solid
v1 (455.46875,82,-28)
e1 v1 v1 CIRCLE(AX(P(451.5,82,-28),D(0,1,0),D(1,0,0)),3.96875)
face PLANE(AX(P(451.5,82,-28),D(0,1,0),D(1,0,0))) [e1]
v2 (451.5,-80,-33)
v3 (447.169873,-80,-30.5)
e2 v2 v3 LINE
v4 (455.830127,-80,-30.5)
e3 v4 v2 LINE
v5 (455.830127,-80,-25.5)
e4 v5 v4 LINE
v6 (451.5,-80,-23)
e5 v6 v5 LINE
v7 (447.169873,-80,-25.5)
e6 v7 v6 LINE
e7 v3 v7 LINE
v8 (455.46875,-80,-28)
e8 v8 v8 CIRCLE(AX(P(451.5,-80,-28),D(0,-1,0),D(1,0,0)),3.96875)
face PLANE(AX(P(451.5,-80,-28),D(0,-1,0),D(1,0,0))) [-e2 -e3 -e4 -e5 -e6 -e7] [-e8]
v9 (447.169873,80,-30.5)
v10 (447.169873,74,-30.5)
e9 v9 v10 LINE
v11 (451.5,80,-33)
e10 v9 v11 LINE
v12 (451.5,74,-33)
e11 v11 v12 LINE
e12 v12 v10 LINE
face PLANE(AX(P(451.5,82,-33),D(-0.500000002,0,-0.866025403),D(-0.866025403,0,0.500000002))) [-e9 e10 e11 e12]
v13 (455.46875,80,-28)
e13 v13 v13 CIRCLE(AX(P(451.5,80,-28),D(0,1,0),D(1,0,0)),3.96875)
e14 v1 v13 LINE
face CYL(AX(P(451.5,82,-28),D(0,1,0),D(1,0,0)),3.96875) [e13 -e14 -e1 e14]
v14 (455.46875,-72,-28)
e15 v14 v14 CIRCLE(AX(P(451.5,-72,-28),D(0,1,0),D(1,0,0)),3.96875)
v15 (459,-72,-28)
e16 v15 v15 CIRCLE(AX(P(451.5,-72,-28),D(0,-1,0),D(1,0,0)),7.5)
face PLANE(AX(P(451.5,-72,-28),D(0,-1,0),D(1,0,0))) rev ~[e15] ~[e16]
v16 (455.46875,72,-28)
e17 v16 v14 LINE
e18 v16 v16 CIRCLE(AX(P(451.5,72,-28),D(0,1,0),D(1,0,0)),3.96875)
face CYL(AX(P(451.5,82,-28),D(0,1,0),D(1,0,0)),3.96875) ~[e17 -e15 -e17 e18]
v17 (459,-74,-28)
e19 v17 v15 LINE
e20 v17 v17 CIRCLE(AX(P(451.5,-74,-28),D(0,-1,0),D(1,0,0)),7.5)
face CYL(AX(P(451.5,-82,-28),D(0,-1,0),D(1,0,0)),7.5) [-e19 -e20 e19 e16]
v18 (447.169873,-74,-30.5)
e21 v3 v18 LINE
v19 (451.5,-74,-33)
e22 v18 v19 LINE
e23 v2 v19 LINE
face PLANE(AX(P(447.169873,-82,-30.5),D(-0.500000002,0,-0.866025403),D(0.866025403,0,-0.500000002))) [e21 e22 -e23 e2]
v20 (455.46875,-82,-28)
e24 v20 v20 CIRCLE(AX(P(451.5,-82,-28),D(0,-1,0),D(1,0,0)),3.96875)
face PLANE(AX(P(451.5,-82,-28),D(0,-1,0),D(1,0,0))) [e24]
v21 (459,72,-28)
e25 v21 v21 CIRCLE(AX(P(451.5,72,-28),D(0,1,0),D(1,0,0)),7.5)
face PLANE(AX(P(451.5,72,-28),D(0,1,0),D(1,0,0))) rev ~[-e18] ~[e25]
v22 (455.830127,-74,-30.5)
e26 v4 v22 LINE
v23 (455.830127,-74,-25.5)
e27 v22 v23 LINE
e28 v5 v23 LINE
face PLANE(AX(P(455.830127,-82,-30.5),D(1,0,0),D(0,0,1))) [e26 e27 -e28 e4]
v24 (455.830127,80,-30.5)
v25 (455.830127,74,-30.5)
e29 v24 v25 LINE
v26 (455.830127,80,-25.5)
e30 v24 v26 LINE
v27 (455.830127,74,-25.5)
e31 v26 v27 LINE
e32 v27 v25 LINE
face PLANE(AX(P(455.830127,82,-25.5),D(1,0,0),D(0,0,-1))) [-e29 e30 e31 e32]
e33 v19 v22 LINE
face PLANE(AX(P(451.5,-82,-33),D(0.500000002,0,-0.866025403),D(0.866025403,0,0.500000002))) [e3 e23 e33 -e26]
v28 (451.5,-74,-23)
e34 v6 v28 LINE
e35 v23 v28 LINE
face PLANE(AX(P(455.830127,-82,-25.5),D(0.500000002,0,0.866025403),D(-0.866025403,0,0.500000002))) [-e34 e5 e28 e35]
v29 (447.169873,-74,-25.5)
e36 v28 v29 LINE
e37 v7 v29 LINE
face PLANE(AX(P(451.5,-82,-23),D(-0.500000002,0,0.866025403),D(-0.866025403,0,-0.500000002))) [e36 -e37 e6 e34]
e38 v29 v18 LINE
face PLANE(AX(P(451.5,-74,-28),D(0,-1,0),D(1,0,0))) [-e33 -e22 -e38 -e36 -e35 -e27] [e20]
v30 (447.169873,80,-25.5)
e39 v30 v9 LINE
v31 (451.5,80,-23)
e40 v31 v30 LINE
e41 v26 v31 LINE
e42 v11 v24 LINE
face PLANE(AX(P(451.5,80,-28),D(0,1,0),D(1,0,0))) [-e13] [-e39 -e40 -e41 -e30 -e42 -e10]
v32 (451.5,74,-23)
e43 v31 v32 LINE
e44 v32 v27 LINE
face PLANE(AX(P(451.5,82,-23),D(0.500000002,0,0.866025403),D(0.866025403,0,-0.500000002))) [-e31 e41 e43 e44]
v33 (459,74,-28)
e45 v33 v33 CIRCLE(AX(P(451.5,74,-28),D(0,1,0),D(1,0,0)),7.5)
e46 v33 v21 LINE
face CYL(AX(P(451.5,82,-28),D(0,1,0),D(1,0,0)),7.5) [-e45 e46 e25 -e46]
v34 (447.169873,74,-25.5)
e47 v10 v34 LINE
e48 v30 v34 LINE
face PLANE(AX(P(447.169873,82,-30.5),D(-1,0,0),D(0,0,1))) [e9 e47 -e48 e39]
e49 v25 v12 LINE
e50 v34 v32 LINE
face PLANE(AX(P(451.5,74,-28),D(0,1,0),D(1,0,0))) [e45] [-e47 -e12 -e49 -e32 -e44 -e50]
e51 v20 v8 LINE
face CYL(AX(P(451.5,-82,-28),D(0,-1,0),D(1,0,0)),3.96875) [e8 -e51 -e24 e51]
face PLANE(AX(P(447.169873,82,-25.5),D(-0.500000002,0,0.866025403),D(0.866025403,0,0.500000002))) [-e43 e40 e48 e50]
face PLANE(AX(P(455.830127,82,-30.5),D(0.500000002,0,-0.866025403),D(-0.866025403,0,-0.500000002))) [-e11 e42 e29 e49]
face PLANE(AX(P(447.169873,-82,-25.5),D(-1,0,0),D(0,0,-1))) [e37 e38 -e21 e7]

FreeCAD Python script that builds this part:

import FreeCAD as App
import Part
import Sketcher

V = App.Vector
Q = App.Units.Quantity

doc = App.newDocument("Part")
body = doc.addObject("PartDesign::Body", "Body")

# Sketch on XZ plane
sketch1 = body.newObject("Sketcher::SketchObject", "Sketch")
sketch1.AttachmentSupport = (doc.getObject("XZ_Plane"), [""])
sketch1.MapMode = "FlatFace"
sketch1.AttachmentOffset = App.Placement(V(0, 0, -82), App.Rotation())
sketch1.addGeometry(Part.Circle(V(500, 56, 0), V(0, 0, 1), 3.96875), False)
sketch1.addConstraint(Sketcher.Constraint("DistanceX", -1, 1, 0, 3, Q("500 mm")))
sketch1.addConstraint(Sketcher.Constraint("DistanceY", -1, 1, 0, 3, Q("56 mm")))
sketch1.addConstraint(Sketcher.Constraint("Diameter", 0, Q("7.9375 mm")))
pad1 = body.newObject("PartDesign::Pad", "Pad")
pad1.Profile = sketch1
pad1.Length = 164

# Sketch on XZ plane
sketch2 = body.newObject("Sketcher::SketchObject", "Sketch001")
sketch2.AttachmentSupport = (doc.getObject("XZ_Plane"), [""])
sketch2.MapMode = "FlatFace"
sketch2.AttachmentOffset = App.Placement(V(0, 0, -82), App.Rotation())
sketch2.addGeometry(Part.Circle(V(500, 56, 0), V(0, 0, 1), 7.5), False)
sketch2.addConstraint(Sketcher.Constraint("Diameter", 0, Q("15 mm")))
sketch2.addConstraint(Sketcher.Constraint("DistanceX", -1, 1, 0, 3, Q("500 mm")))
sketch2.addConstraint(Sketcher.Constraint("DistanceY", -1, 1, 0, 3, Q("56 mm")))
pad2 = body.newObject("PartDesign::Pad", "Pad001")
pad2.Profile = sketch2
pad2.Length = 10

# Sketch on XZ plane
sketch3 = body.newObject("Sketcher::SketchObject", "Sketch002")
sketch3.AttachmentSupport = (doc.getObject("XZ_Plane"), [""])
sketch3.MapMode = "FlatFace"
sketch3.AttachmentOffset = App.Placement(V(0, 0, -82), App.Rotation())
sketch3.addGeometry(Part.Circle(V(500, 56, 0), V(0, 0, 1), 7.5), False)
sketch3.addGeometry(Part.LineSegment(V(495.669873, 53.5, 0), V(500, 51, 0)), False)
sketch3.addGeometry(Part.LineSegment(V(500, 51, 0), V(504.330127, 53.5, 0)), False)
sketch3.addGeometry(Part.LineSegment(V(504.330127, 53.5, 0), V(504.330127, 58.5, 0)), False)
sketch3.addGeometry(Part.LineSegment(V(504.330127, 58.5, 0), V(500, 61, 0)), False)
sketch3.addGeometry(Part.LineSegment(V(500, 61, 0), V(495.669873, 58.5, 0)), False)
sketch3.addGeometry(Part.LineSegment(V(495.669873, 58.5, 0), V(495.669873, 53.5, 0)), False)
sketch3.addConstraint(Sketcher.Constraint("Coincident", 1, 2, 2, 1))
sketch3.addConstraint(Sketcher.Constraint("Coincident", 2, 2, 3, 1))
sketch3.addConstraint(Sketcher.Constraint("Coincident", 3, 2, 4, 1))
sketch3.addConstraint(Sketcher.Constraint("Coincident", 4, 2, 5, 1))
sketch3.addConstraint(Sketcher.Constraint("Coincident", 5, 2, 6, 1))
sketch3.addConstraint(Sketcher.Constraint("Coincident", 6, 2, 1, 1))
sketch3.addConstraint(Sketcher.Constraint("Vertical", 3))
sketch3.addConstraint(Sketcher.Constraint("Vertical", 6))
sketch3.addConstraint(Sketcher.Constraint("Parallel", 1, 4))
sketch3.addConstraint(Sketcher.Constraint("Parallel", 2, 5))
sketch3.addConstraint(Sketcher.Constraint("Horizontal", 3, 2, 5, 2))
sketch3.addConstraint(Sketcher.Constraint("Horizontal", 2, 2, 6, 2))
sketch3.addConstraint(Sketcher.Constraint("Vertical", 0, 3, 1, 2))
sketch3.addConstraint(Sketcher.Constraint("Vertical", 1, 2, 4, 2))
sketch3.addConstraint(Sketcher.Constraint("Diameter", 0, Q("15 mm")))
sketch3.addConstraint(Sketcher.Constraint("DistanceY", 3, 1, 3, 2, Q("5 mm")))
sketch3.addConstraint(Sketcher.Constraint("Angle", 1, Q("-30 deg")))
sketch3.addConstraint(Sketcher.Constraint("Distance", 1, Q("5 mm")))
sketch3.addConstraint(Sketcher.Constraint("DistanceX", -1, 1, 0, 3, Q("500 mm")))
sketch3.addConstraint(Sketcher.Constraint("DistanceY", -1, 1, 0, 3, Q("56 mm")))
sketch3.addConstraint(Sketcher.Constraint("DistanceY", -1, 1, 1, 2, Q("51 mm")))
pocket1 = body.newObject("PartDesign::Pocket", "Pocket")
pocket1.Profile = sketch3
pocket1.Length = 8
pocket1.Reversed = True

# Sketch on XZ plane
sketch4 = body.newObject("Sketcher::SketchObject", "Sketch003")
sketch4.AttachmentSupport = (doc.getObject("XZ_Plane"), [""])
sketch4.MapMode = "FlatFace"
sketch4.AttachmentOffset = App.Placement(V(0, 0, -82), App.Rotation())
sketch4.addGeometry(Part.Circle(V(500, 56, 0), V(0, 0, 1), 7.5), False)
sketch4.addGeometry(Part.Circle(V(500, 56, 0), V(0, 0, 1), 3.96875), False)
sketch4.addConstraint(Sketcher.Constraint("Coincident", 1, 3, 0, 3))
sketch4.addConstraint(Sketcher.Constraint("Diameter", 0, Q("15 mm")))
sketch4.addConstraint(Sketcher.Constraint("DistanceX", -1, 1, 0, 3, Q("500 mm")))
sketch4.addConstraint(Sketcher.Constraint("DistanceY", -1, 1, 0, 3, Q("56 mm")))
sketch4.addConstraint(Sketcher.Constraint("Diameter", 1, Q("7.9375 mm")))
pocket2 = body.newObject("PartDesign::Pocket", "Pocket001")
pocket2.Profile = sketch4
pocket2.Length = 2
pocket2.Reversed = True

# Sketch on XZ plane
sketch5 = body.newObject("Sketcher::SketchObject", "Sketch004")
sketch5.AttachmentSupport = (doc.getObject("XZ_Plane"), [""])
sketch5.MapMode = "FlatFace"
sketch5.AttachmentOffset = App.Placement(V(0, 0, 82), App.Rotation())
sketch5.addGeometry(Part.Circle(V(500, 56, 0), V(0, 0, 1), 7.5), False)
sketch5.addConstraint(Sketcher.Constraint("Diameter", 0, Q("15 mm")))
sketch5.addConstraint(Sketcher.Constraint("DistanceX", -1, 1, 0, 3, Q("500 mm")))
sketch5.addConstraint(Sketcher.Constraint("DistanceY", -1, 1, 0, 3, Q("56 mm")))
pad3 = body.newObject("PartDesign::Pad", "Pad002")
pad3.Profile = sketch5
pad3.Length = 10
pad3.Reversed = True

# Sketch on XZ plane
sketch6 = body.newObject("Sketcher::SketchObject", "Sketch005")
sketch6.AttachmentSupport = (doc.getObject("XZ_Plane"), [""])
sketch6.MapMode = "FlatFace"
sketch6.AttachmentOffset = App.Placement(V(0, 0, 82), App.Rotation())
sketch6.addGeometry(Part.Circle(V(500, 56, 0), V(0, 0, 1), 7.5), False)
sketch6.addGeometry(Part.LineSegment(V(495.669873, 58.5, 0), V(500, 61, 0)), False)
sketch6.addGeometry(Part.LineSegment(V(500, 61, 0), V(504.330127, 58.5, 0)), False)
sketch6.addGeometry(Part.LineSegment(V(504.330127, 58.5, 0), V(504.330127, 53.5, 0)), False)
sketch6.addGeometry(Part.LineSegment(V(504.330127, 53.5, 0), V(500, 51, 0)), False)
sketch6.addGeometry(Part.LineSegment(V(500, 51, 0), V(495.669873, 53.5, 0)), False)
sketch6.addGeometry(Part.LineSegment(V(495.669873, 53.5, 0), V(495.669873, 58.5, 0)), False)
sketch6.addConstraint(Sketcher.Constraint("Coincident", 1, 2, 2, 1))
sketch6.addConstraint(Sketcher.Constraint("Coincident", 2, 2, 3, 1))
sketch6.addConstraint(Sketcher.Constraint("Coincident", 3, 2, 4, 1))
sketch6.addConstraint(Sketcher.Constraint("Coincident", 4, 2, 5, 1))
sketch6.addConstraint(Sketcher.Constraint("Coincident", 5, 2, 6, 1))
sketch6.addConstraint(Sketcher.Constraint("Coincident", 6, 2, 1, 1))
sketch6.addConstraint(Sketcher.Constraint("Vertical", 3))
sketch6.addConstraint(Sketcher.Constraint("Vertical", 6))
sketch6.addConstraint(Sketcher.Constraint("Parallel", 1, 4))
sketch6.addConstraint(Sketcher.Constraint("Parallel", 2, 5))
sketch6.addConstraint(Sketcher.Constraint("Horizontal", 3, 2, 5, 2))
sketch6.addConstraint(Sketcher.Constraint("Horizontal", 2, 2, 6, 2))
sketch6.addConstraint(Sketcher.Constraint("Vertical", 0, 3, 1, 2))
sketch6.addConstraint(Sketcher.Constraint("Vertical", 1, 2, 4, 2))
sketch6.addConstraint(Sketcher.Constraint("Diameter", 0, Q("15 mm")))
sketch6.addConstraint(Sketcher.Constraint("DistanceY", 3, 2, 3, 1, Q("5 mm")))
sketch6.addConstraint(Sketcher.Constraint("Angle", 1, Q("30 deg")))
sketch6.addConstraint(Sketcher.Constraint("Distance", 1, Q("5 mm")))
sketch6.addConstraint(Sketcher.Constraint("DistanceX", -1, 1, 0, 3, Q("500 mm")))
sketch6.addConstraint(Sketcher.Constraint("DistanceY", -1, 1, 0, 3, Q("56 mm")))
sketch6.addConstraint(Sketcher.Constraint("DistanceY", -1, 1, 1, 2, Q("61 mm")))
pocket3 = body.newObject("PartDesign::Pocket", "Pocket002")
pocket3.Profile = sketch6
pocket3.Length = 8

# Sketch on XZ plane
sketch7 = body.newObject("Sketcher::SketchObject", "Sketch006")
sketch7.AttachmentSupport = (doc.getObject("XZ_Plane"), [""])
sketch7.MapMode = "FlatFace"
sketch7.AttachmentOffset = App.Placement(V(0, 0, 82), App.Rotation())
sketch7.addGeometry(Part.Circle(V(500, 56, 0), V(0, 0, 1), 7.5), False)
sketch7.addGeometry(Part.Circle(V(500, 56, 0), V(0, 0, 1), 3.96875), False)
sketch7.addConstraint(Sketcher.Constraint("Coincident", 1, 3, 0, 3))
sketch7.addConstraint(Sketcher.Constraint("Diameter", 0, Q("15 mm")))
sketch7.addConstraint(Sketcher.Constraint("DistanceX", -1, 1, 0, 3, Q("500 mm")))
sketch7.addConstraint(Sketcher.Constraint("DistanceY", -1, 1, 0, 3, Q("56 mm")))
sketch7.addConstraint(Sketcher.Constraint("Diameter", 1, Q("7.9375 mm")))
pocket4 = body.newObject("PartDesign::Pocket", "Pocket003")
pocket4.Profile = sketch7
pocket4.Length = 2
body2 = doc.addObject("PartDesign::Body", "Body001")
doc.recompute()

body.Placement = App.Placement(V(-48.5, 0, -84), App.Rotation(V(0, 0, 1), 0))
boolean = body2.newObject("PartDesign::Boolean", "Boolean")
boolean.Type = "Fuse"
boolean.addObjects([body])

doc.recompute()
